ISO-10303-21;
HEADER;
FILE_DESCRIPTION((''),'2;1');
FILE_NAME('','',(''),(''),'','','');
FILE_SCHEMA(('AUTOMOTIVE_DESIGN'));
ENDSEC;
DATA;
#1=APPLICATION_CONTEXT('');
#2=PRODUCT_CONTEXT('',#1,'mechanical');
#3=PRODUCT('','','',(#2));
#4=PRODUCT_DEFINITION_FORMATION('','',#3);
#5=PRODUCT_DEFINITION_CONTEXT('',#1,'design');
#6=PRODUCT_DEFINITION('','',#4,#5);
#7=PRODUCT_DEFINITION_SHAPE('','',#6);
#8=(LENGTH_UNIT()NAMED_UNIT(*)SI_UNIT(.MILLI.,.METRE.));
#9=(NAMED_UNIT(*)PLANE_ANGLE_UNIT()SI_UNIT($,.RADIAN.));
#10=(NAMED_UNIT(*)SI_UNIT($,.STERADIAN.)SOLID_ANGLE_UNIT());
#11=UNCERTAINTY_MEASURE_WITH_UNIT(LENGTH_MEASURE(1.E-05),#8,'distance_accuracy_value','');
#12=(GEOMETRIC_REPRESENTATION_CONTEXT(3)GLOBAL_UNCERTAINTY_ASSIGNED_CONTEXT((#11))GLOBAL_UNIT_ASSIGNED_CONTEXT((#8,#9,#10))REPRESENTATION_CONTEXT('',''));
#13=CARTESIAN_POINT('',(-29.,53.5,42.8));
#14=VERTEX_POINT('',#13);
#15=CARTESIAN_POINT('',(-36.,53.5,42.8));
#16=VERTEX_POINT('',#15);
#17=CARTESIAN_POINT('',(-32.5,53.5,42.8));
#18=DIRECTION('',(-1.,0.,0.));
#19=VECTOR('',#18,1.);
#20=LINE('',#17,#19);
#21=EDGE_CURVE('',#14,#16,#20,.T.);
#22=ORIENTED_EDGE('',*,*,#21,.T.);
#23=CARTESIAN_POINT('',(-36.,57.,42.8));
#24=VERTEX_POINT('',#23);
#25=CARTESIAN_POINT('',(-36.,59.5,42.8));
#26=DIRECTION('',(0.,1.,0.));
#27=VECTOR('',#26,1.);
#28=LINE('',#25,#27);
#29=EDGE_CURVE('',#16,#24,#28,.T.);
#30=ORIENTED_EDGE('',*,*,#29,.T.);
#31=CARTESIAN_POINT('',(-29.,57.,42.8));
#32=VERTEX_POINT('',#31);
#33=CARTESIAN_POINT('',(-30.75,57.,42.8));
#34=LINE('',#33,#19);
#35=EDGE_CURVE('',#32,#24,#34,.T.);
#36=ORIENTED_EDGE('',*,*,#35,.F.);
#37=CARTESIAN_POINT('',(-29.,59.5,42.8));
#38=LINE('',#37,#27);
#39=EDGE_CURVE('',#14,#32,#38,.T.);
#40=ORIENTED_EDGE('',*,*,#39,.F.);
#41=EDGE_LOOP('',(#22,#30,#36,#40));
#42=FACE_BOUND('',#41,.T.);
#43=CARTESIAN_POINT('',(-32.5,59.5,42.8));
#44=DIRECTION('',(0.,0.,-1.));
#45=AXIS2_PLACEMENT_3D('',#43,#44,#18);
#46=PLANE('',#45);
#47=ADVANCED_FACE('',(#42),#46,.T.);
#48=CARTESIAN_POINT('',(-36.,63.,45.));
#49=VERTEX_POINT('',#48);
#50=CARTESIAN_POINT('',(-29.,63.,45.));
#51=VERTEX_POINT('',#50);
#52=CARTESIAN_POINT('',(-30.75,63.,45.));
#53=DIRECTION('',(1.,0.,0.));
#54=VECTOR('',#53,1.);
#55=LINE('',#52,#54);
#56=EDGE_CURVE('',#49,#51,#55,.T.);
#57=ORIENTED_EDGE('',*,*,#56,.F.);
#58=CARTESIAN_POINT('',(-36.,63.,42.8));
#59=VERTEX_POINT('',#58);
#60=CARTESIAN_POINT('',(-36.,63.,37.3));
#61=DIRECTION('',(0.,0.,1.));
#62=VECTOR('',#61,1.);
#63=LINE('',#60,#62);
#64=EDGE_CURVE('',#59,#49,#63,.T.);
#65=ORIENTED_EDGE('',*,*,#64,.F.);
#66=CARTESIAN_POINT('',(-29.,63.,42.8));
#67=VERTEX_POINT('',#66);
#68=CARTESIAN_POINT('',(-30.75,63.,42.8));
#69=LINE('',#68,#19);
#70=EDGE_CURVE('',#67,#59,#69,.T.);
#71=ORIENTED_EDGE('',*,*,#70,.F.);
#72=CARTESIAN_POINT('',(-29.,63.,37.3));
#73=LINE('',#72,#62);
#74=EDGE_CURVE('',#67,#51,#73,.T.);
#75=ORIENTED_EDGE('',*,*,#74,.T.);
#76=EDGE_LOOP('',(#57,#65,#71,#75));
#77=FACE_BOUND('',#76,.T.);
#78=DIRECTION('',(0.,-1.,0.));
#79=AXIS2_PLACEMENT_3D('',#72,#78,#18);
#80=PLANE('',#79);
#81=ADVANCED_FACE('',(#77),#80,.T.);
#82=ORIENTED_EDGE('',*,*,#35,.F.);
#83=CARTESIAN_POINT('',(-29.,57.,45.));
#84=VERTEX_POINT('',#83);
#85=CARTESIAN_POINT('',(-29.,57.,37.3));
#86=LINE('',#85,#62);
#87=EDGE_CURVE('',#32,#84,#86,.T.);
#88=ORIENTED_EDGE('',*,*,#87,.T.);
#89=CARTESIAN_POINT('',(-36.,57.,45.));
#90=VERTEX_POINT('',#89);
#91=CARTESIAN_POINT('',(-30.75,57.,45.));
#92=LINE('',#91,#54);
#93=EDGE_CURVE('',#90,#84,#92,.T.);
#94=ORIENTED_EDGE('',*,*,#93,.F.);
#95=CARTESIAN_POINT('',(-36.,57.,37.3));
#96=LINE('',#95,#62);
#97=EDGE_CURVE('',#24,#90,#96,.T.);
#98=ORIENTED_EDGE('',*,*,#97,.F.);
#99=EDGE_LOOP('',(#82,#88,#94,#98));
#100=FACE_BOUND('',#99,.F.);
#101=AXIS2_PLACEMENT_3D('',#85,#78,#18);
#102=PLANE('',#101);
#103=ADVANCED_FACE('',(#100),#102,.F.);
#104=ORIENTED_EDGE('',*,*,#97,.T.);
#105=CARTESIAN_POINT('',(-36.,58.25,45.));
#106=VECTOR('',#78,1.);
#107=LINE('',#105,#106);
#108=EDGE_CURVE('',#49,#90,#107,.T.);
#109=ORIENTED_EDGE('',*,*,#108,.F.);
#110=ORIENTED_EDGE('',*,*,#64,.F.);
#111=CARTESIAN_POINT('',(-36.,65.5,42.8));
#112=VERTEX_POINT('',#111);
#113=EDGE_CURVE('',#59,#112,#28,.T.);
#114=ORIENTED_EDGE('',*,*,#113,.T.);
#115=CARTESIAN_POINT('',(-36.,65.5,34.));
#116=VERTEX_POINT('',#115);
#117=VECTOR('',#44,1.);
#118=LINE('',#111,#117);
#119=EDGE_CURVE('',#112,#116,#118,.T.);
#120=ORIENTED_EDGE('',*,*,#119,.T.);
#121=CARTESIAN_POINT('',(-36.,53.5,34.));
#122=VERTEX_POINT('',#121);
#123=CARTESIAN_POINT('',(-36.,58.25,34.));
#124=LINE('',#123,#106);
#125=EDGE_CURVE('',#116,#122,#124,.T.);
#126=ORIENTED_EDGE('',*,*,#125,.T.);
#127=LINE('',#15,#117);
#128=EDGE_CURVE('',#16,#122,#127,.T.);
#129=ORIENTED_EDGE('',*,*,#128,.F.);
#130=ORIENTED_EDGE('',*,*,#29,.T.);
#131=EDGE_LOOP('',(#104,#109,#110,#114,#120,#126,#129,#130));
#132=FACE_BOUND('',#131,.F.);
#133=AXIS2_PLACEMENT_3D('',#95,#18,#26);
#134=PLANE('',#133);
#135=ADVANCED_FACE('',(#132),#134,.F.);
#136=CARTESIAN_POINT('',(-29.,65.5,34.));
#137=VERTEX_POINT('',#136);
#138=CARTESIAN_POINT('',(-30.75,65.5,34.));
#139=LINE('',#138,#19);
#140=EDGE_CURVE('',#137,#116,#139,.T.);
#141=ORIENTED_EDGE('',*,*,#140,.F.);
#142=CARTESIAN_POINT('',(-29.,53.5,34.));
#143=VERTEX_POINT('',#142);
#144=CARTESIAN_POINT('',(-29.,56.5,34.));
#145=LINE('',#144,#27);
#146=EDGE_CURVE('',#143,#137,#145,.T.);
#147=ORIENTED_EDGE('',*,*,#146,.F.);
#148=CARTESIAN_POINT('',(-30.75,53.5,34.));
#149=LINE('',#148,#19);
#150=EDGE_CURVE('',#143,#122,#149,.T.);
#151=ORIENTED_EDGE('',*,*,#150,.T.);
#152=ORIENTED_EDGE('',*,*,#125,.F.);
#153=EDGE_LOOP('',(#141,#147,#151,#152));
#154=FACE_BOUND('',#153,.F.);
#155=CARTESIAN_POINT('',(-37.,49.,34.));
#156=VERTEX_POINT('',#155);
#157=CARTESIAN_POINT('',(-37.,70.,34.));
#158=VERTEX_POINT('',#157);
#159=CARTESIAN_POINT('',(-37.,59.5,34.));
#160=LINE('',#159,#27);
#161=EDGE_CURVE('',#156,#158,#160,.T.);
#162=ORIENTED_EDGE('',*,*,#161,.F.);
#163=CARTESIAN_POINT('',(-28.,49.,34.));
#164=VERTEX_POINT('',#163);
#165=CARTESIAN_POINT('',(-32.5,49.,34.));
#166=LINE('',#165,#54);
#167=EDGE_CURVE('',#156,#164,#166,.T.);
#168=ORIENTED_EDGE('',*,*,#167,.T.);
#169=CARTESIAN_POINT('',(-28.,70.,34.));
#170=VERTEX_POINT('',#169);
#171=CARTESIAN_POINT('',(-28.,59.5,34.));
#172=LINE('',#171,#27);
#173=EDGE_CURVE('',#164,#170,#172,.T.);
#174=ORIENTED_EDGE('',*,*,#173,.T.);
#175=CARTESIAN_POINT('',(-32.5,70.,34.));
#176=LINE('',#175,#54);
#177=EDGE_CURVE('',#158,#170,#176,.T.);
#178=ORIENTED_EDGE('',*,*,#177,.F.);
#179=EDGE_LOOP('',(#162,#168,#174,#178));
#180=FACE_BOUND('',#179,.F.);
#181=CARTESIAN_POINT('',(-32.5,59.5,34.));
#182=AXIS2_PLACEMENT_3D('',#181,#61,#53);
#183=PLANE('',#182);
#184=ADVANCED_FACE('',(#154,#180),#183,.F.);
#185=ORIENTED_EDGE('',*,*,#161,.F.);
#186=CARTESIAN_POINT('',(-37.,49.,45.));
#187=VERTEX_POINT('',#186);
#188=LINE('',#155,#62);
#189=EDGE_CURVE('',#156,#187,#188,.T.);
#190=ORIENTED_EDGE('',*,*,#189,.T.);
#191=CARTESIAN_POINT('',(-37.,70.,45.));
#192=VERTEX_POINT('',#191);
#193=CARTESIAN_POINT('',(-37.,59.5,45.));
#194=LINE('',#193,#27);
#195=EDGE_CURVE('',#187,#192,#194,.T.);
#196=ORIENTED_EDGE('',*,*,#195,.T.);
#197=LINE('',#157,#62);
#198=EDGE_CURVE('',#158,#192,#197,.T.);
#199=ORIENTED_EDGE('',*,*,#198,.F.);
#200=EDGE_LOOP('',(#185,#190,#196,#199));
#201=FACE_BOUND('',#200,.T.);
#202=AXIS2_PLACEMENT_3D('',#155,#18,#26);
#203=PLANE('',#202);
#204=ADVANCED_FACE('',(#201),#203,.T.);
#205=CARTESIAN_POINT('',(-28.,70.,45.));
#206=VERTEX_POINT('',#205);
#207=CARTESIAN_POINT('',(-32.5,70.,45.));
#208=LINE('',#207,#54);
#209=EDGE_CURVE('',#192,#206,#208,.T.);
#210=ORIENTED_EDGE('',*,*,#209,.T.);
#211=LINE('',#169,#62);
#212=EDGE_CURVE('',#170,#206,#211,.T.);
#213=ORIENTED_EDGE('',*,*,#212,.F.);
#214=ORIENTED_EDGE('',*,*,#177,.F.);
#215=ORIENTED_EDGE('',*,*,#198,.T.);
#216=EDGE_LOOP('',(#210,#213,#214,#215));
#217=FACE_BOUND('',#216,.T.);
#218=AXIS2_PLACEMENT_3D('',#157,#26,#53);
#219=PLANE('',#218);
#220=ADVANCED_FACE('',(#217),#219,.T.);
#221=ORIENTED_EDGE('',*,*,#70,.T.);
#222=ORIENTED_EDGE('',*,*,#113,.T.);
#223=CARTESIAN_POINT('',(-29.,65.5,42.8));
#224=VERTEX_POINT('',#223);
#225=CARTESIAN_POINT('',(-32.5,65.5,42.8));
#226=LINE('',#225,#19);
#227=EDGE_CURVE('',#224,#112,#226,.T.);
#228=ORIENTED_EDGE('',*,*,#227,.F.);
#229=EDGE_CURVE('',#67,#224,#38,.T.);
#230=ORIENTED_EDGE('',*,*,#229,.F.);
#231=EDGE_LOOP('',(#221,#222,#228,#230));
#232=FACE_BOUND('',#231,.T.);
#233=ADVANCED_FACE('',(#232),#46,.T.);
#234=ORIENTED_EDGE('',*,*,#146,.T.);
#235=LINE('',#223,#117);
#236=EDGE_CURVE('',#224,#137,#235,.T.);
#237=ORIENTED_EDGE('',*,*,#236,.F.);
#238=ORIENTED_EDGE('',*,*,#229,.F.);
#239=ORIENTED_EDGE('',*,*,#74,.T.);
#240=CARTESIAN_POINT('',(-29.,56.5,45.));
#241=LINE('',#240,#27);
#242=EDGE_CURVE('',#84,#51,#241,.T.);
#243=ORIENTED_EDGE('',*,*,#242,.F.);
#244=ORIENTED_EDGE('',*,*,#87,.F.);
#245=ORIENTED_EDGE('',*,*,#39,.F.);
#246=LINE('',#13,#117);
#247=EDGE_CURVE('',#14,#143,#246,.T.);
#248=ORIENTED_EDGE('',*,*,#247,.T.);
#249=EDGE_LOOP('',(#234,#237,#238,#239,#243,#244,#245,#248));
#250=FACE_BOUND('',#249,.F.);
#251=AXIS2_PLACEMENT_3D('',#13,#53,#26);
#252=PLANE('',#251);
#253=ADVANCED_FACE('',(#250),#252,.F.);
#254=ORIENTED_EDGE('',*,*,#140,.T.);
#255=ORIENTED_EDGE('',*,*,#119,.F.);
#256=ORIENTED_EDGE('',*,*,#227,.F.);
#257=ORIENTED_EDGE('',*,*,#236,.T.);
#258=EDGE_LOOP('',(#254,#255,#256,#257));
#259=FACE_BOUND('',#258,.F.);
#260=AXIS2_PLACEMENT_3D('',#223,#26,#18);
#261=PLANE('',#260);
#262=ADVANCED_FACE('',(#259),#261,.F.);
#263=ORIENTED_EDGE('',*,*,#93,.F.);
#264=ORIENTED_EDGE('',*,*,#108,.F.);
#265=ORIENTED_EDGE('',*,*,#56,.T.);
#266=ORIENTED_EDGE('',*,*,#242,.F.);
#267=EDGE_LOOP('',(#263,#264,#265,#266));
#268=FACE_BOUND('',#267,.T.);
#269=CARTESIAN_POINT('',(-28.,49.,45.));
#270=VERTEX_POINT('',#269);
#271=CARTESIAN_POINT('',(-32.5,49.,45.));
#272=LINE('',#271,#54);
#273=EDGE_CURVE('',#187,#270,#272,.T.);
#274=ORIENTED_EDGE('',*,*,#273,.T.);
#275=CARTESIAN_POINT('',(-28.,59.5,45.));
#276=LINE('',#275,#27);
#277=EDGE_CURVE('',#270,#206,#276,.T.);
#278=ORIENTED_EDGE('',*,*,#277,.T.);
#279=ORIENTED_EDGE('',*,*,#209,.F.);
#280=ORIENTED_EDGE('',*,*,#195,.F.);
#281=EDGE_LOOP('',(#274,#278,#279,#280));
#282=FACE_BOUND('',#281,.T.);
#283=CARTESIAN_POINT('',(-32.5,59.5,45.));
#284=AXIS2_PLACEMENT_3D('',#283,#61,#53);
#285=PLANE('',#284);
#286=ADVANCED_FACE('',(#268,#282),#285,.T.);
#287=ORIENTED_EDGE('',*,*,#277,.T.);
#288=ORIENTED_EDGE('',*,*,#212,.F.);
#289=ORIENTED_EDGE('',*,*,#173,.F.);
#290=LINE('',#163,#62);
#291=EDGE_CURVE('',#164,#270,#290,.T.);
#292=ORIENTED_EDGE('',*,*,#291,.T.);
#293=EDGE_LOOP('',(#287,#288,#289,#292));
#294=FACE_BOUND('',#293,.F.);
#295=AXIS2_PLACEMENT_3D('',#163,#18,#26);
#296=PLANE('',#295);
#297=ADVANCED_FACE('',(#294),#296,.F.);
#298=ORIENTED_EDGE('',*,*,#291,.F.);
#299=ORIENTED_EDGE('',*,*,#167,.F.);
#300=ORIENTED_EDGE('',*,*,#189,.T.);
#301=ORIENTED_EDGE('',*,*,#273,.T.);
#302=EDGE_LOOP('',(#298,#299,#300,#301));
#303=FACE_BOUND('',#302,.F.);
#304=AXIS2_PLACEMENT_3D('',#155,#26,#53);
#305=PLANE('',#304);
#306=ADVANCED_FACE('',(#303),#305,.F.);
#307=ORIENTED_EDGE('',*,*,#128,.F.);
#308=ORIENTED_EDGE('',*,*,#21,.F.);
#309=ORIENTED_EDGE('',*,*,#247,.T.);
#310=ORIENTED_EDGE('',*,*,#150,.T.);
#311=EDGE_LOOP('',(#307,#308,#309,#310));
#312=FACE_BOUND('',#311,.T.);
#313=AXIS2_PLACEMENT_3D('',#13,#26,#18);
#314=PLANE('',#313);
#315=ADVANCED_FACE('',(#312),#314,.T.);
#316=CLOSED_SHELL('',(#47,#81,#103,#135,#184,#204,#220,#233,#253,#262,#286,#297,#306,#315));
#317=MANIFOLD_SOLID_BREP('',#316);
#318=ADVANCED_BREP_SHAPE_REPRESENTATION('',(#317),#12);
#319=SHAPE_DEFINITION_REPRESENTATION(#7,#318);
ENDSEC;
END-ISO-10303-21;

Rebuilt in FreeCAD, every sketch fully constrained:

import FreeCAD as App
import Part
import Sketcher
Q = App.Units.Quantity


def edges_at(feature, points):
    """Names of the edges that pass closest to the given points."""
    edges = feature.Shape.Edges
    near = lambda p: min(range(len(edges)), key=lambda i: edges[i].distToShape(Part.Vertex(*p))[0])
    return sorted({f"Edge{near(p) + 1}" for p in points})

doc = App.newDocument("Part")
body = doc.addObject("PartDesign::Body", "Body")

sketch1 = body.newObject("Sketcher::SketchObject", "Sketch")
sketch1.AttachmentSupport = (doc.getObject("XY_Plane"), [""])
sketch1.MapMode = "FlatFace"
sketch1.AttachmentOffset = App.Placement(App.Vector(0, 0, 2.5), App.Rotation())
sketch1.addGeometry(Part.LineSegment(App.Vector(-10, -8, 0), App.Vector(-10, -15, 0)), False)
sketch1.addGeometry(Part.LineSegment(App.Vector(-10, -15, 0), App.Vector(-4, -15, 0)), False)
sketch1.addGeometry(Part.LineSegment(App.Vector(-4, -15, 0), App.Vector(-4, -8, 0)), False)
sketch1.addGeometry(Part.LineSegment(App.Vector(-4, -8, 0), App.Vector(-10, -8, 0)), False)
sketch1.addConstraint(Sketcher.Constraint("Coincident", 0, 2, 1, 1))
sketch1.addConstraint(Sketcher.Constraint("Coincident", 1, 2, 2, 1))
sketch1.addConstraint(Sketcher.Constraint("Coincident", 2, 2, 3, 1))
sketch1.addConstraint(Sketcher.Constraint("Coincident", 3, 2, 0, 1))
sketch1.addConstraint(Sketcher.Constraint("Vertical", 0))
sketch1.addConstraint(Sketcher.Constraint("Horizontal", 1))
sketch1.addConstraint(Sketcher.Constraint("Vertical", 2))
sketch1.addConstraint(Sketcher.Constraint("Horizontal", 3))
sketch1.addConstraint(Sketcher.Constraint("DistanceX", 1, 1, 1, 2, Q("6 mm")))
sketch1.addConstraint(Sketcher.Constraint("DistanceY", 0, 2, 0, 1, Q("7 mm")))
sketch1.addConstraint(Sketcher.Constraint("DistanceY", 0, 2, -1, 1, Q("15 mm")))
sketch1.addConstraint(Sketcher.Constraint("DistanceX", 0, 2, -1, 1, Q("9.5 mm")))
pad1 = body.newObject("PartDesign::Pad", "Pad")
pad1.Profile = sketch1
pad1.Length = 8
body2 = doc.addObject("PartDesign::Body", "Body001")

sketch2 = body2.newObject("Sketcher::SketchObject", "Sketch001")
sketch2.AttachmentSupport = (doc.getObject("XY_Plane001"), [""])
sketch2.MapMode = "FlatFace"
sketch2.AttachmentOffset = App.Placement(App.Vector(0, 0, 7.5), App.Rotation())
sketch2.addGeometry(Part.LineSegment(App.Vector(-13, -19, 0), App.Vector(-13, -7, 0)), False)
sketch2.addGeometry(Part.LineSegment(App.Vector(-13, -7, 0), App.Vector(-6, -7, 0)), False)
sketch2.addGeometry(Part.LineSegment(App.Vector(-6, -7, 0), App.Vector(-6, -19, 0)), False)
sketch2.addGeometry(Part.LineSegment(App.Vector(-6, -19, 0), App.Vector(-13, -19, 0)), False)
sketch2.addConstraint(Sketcher.Constraint("Coincident", 0, 2, 1, 1))
sketch2.addConstraint(Sketcher.Constraint("Coincident", 1, 2, 2, 1))
sketch2.addConstraint(Sketcher.Constraint("Coincident", 2, 2, 3, 1))
sketch2.addConstraint(Sketcher.Constraint("Coincident", 3, 2, 0, 1))
sketch2.addConstraint(Sketcher.Constraint("Vertical", 0))
sketch2.addConstraint(Sketcher.Constraint("Horizontal", 1))
sketch2.addConstraint(Sketcher.Constraint("Vertical", 2))
sketch2.addConstraint(Sketcher.Constraint("Horizontal", 3))
sketch2.addConstraint(Sketcher.Constraint("DistanceX", 1, 1, 1, 2, Q("7 mm")))
sketch2.addConstraint(Sketcher.Constraint("DistanceY", 0, 1, 0, 2, Q("12 mm")))
sketch2.addConstraint(Sketcher.Constraint("DistanceX", 0, 2, -1, 1, Q("13 mm")))
sketch2.addConstraint(Sketcher.Constraint("DistanceY", 0, 2, -1, 1, Q("7 mm")))
pad2 = body2.newObject("PartDesign::Pad", "Pad001")
pad2.Profile = sketch2
pad2.Length = 10
pad2.Reversed = True
doc.recompute()

chamfer = body2.newObject("PartDesign::Chamfer", "Chamfer")
chamfer.Base = (pad2, edges_at(pad2, [(-13, -13, -2.5)]))
chamfer.Size = 1
body3 = doc.addObject("PartDesign::Body", "Body002")
doc.recompute()

body2.Placement = App.Placement(App.Vector(-20, -2, 0.5), App.Rotation(App.Vector(0, 0, 1), 90))
boolean = body3.newObject("PartDesign::Boolean", "Boolean")
boolean.Type = "Fuse"
boolean.addObjects([body2])
doc.recompute()

boolean2 = body3.newObject("PartDesign::Boolean", "Boolean001")
boolean2.Type = "Fuse"
boolean2.addObjects([body])
body4 = doc.addObject("PartDesign::Body", "Body003")
doc.recompute()

body3.Placement = App.Placement(App.Vector(-44, 66.5, 34.8), App.Rotation(App.Vector(0, 0, 1), 90))
boolean3 = body4.newObject("PartDesign::Boolean", "Boolean002")
boolean3.Type = "Fuse"
boolean3.addObjects([body3])
body5 = doc.addObject("PartDesign::Body", "Body004")

sketch3 = body5.newObject("Sketcher::SketchObject", "Sketch002")
sketch3.AttachmentSupport = (doc.getObject("XY_Plane004"), [""])
sketch3.MapMode = "FlatFace"
sketch3.AttachmentOffset = App.Placement(App.Vector(0, 0, 34), App.Rotation())
sketch3.addGeometry(Part.LineSegment(App.Vector(-37, 70, 0), App.Vector(-37, 49, 0)), False)
sketch3.addGeometry(Part.LineSegment(App.Vector(-37, 49, 0), App.Vector(-28, 49, 0)), False)
sketch3.addGeometry(Part.LineSegment(App.Vector(-28, 49, 0), App.Vector(-28, 70, 0)), False)
sketch3.addGeometry(Part.LineSegment(App.Vector(-28, 70, 0), App.Vector(-37, 70, 0)), False)
sketch3.addConstraint(Sketcher.Constraint("Coincident", 0, 2, 1, 1))
sketch3.addConstraint(Sketcher.Constraint("Coincident", 1, 2, 2, 1))
sketch3.addConstraint(Sketcher.Constraint("Coincident", 2, 2, 3, 1))
sketch3.addConstraint(Sketcher.Constraint("Coincident", 3, 2, 0, 1))
sketch3.addConstraint(Sketcher.Constraint("Vertical", 0))
sketch3.addConstraint(Sketcher.Constraint("Horizontal", 1))
sketch3.addConstraint(Sketcher.Constraint("Vertical", 2))
sketch3.addConstraint(Sketcher.Constraint("Horizontal", 3))
sketch3.addConstraint(Sketcher.Constraint("DistanceX", 1, 1, 1, 2, Q("9 mm")))
sketch3.addConstraint(Sketcher.Constraint("DistanceY", 0, 2, 0, 1, Q("21 mm")))
sketch3.addConstraint(Sketcher.Constraint("DistanceX", 0, 2, -1, 1, Q("37 mm")))
sketch3.addConstraint(Sketcher.Constraint("DistanceY", -1, 1, 0, 2, Q("49 mm")))
pad3 = body5.newObject("PartDesign::Pad", "Pad002")
pad3.Profile = sketch3
pad3.Length = 11
doc.recompute()

boolean4 = body5.newObject("PartDesign::Boolean", "Boolean003")
boolean4.Type = "Cut"
boolean4.addObjects([body4])

doc.recompute()
